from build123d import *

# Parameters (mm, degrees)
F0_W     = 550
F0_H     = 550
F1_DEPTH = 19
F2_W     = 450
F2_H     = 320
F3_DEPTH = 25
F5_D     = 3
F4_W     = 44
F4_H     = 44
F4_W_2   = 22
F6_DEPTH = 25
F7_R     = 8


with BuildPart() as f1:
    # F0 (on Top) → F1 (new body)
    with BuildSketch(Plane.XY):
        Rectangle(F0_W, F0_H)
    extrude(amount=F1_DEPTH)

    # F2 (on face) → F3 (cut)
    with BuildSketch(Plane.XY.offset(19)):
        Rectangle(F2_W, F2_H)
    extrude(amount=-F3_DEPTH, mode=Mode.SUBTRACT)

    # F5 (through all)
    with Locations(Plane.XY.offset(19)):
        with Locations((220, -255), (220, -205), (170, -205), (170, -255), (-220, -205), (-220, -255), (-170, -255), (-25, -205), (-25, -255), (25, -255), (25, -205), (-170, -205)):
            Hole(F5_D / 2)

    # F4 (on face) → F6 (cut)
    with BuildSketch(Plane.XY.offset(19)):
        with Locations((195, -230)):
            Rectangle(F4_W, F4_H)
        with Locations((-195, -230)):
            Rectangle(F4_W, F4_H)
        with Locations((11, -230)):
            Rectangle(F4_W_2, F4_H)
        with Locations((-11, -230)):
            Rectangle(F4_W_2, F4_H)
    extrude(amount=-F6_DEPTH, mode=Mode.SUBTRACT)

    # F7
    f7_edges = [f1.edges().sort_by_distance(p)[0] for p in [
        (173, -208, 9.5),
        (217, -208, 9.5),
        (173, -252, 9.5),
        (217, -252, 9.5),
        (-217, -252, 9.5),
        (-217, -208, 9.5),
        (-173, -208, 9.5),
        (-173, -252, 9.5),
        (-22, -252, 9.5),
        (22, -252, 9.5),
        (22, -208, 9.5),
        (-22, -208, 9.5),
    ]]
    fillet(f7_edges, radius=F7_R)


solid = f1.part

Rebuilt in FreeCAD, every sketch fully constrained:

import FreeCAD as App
import Part
import Sketcher

V = App.Vector
Q = App.Units.Quantity


def edges_at(feature, points):
    """Names of the edges that pass closest to the given points."""
    edges = feature.Shape.Edges
    near = lambda p: min(range(len(edges)), key=lambda i: edges[i].distToShape(Part.Vertex(*p))[0])
    return sorted({f"Edge{near(p) + 1}" for p in points})


def add_polygon(sketch, points):
    """Adds a closed chain of lines whose ends are joined by coincident constraints."""
    first, n = sketch.GeometryCount, len(points)
    for a, b in zip(points, points[1:] + points[:1]):
        sketch.addGeometry(Part.LineSegment(App.Vector(*a, 0), App.Vector(*b, 0)), False)
    for i in range(n):
        sketch.addConstraint(Sketcher.Constraint("Coincident", first + i, 2, first + (i + 1) % n, 1))

doc = App.newDocument("Part")
body = doc.addObject("PartDesign::Body", "Body")

# Sketch on XY plane
sketch1 = body.newObject("Sketcher::SketchObject", "Sketch")
sketch1.AttachmentSupport = (doc.getObject("XY_Plane"), [""])
sketch1.MapMode = "FlatFace"
add_polygon(sketch1, [(-275, 275), (-275, -275), (275, -275), (275, 275)])  # lines 0-3
sketch1.addConstraint([
    Sketcher.Constraint("Vertical", 0),
    Sketcher.Constraint("Horizontal", 1),
    Sketcher.Constraint("Vertical", 2),
    Sketcher.Constraint("Horizontal", 3),
    Sketcher.Constraint("Symmetric", 0, 2, 2, 2, -1, 1),
    Sketcher.Constraint("Equal", 3, 0),
    Sketcher.Constraint("DistanceX", 1, 1, 1, 2, Q("550 mm")),
])
pad1 = body.newObject("PartDesign::Pad", "Pad")
pad1.Profile = sketch1
pad1.Length = 19

# Sketch on XY plane
sketch2 = body.newObject("Sketcher::SketchObject", "Sketch001")
sketch2.AttachmentSupport = (doc.getObject("XY_Plane"), [""])
sketch2.MapMode = "FlatFace"
sketch2.AttachmentOffset = App.Placement(V(0, 0, 19), App.Rotation())
add_polygon(sketch2, [(-225, 160), (-225, -160), (225, -160), (225, 160)])  # lines 0-3
sketch2.addConstraint([
    Sketcher.Constraint("Vertical", 0),
    Sketcher.Constraint("Horizontal", 1),
    Sketcher.Constraint("Vertical", 2),
    Sketcher.Constraint("Horizontal", 3),
    Sketcher.Constraint("Symmetric", 0, 2, 2, 2, -1, 1),
    Sketcher.Constraint("DistanceX", 1, 1, 1, 2, Q("450 mm")),
    Sketcher.Constraint("DistanceY", 0, 2, 0, 1, Q("320 mm")),
])
pocket1 = body.newObject("PartDesign::Pocket", "Pocket")
pocket1.Profile = sketch2
pocket1.Length = 25

# Sketch on XY plane
sketch3 = body.newObject("Sketcher::SketchObject", "Sketch002")
sketch3.AttachmentSupport = (doc.getObject("XY_Plane"), [""])
sketch3.MapMode = "FlatFace"
sketch3.AttachmentOffset = App.Placement(V(0, 0, 19), App.Rotation())
sketch3.addGeometry([
    Part.Circle(V(220, -255, 0), V(0, 0, 1), 1.5),  # 0
    Part.Circle(V(220, -205, 0), V(0, 0, 1), 1.5),  # 1
    Part.Circle(V(170, -205, 0), V(0, 0, 1), 1.5),  # 2
    Part.Circle(V(170, -255, 0), V(0, 0, 1), 1.5),  # 3
    Part.Circle(V(-220, -205, 0), V(0, 0, 1), 1.5),  # 4
    Part.Circle(V(-220, -255, 0), V(0, 0, 1), 1.5),  # 5
    Part.Circle(V(-170, -255, 0), V(0, 0, 1), 1.5),  # 6
    Part.Circle(V(-25, -205, 0), V(0, 0, 1), 1.5),  # 7
    Part.Circle(V(-25, -255, 0), V(0, 0, 1), 1.5),  # 8
    Part.Circle(V(25, -255, 0), V(0, 0, 1), 1.5),  # 9
    Part.Circle(V(25, -205, 0), V(0, 0, 1), 1.5),  # 10
    Part.Circle(V(-170, -205, 0), V(0, 0, 1), 1.5),  # 11
], False)
sketch3.addConstraint([
    Sketcher.Constraint("Equal", 0, 1),
    Sketcher.Constraint("Equal", 1, 2),
    Sketcher.Constraint("Equal", 2, 3),
    Sketcher.Constraint("Equal", 3, 4),
    Sketcher.Constraint("Equal", 4, 5),
    Sketcher.Constraint("Equal", 5, 6),
    Sketcher.Constraint("Equal", 6, 7),
    Sketcher.Constraint("Equal", 7, 8),
    Sketcher.Constraint("Equal", 8, 9),
    Sketcher.Constraint("Equal", 9, 10),
    Sketcher.Constraint("Equal", 10, 11),
    Sketcher.Constraint("Symmetric", 1, 3, 4, 3, -2),
    Sketcher.Constraint("Symmetric", 0, 3, 5, 3, -2),
    Sketcher.Constraint("Symmetric", 3, 3, 6, 3, -2),
    Sketcher.Constraint("Symmetric", 8, 3, 9, 3, -2),
    Sketcher.Constraint("Symmetric", 7, 3, 10, 3, -2),
    Sketcher.Constraint("Symmetric", 2, 3, 11, 3, -2),
    Sketcher.Constraint("Horizontal", 1, 3, 2, 3),
    Sketcher.Constraint("Horizontal", 0, 3, 3, 3),
    Sketcher.Constraint("Horizontal", 4, 3, 7, 3),
    Sketcher.Constraint("Horizontal", 6, 3, 8, 3),
    Sketcher.Constraint("Vertical", 0, 3, 1, 3),
    Sketcher.Constraint("Vertical", 2, 3, 3, 3),
    Sketcher.Constraint("Vertical", 7, 3, 8, 3),
    Sketcher.Constraint("Diameter", 0, Q("3 mm")),
    Sketcher.Constraint("DistanceX", -1, 1, 0, 3, Q("220 mm")),
    Sketcher.Constraint("DistanceY", 0, 3, -1, 1, Q("255 mm")),
    Sketcher.Constraint("DistanceY", 1, 3, -1, 1, Q("205 mm")),
    Sketcher.Constraint("DistanceX", -1, 1, 2, 3, Q("170 mm")),
    Sketcher.Constraint("DistanceX", 7, 3, -1, 1, Q("25 mm")),
])
doc.recompute()
hole = body.newObject("PartDesign::Hole", "Hole")
hole.Profile = sketch3
hole.ThreadType = "None"
hole.Diameter = 3
hole.DepthType = "ThroughAll"

# Sketch on XY plane
sketch4 = body.newObject("Sketcher::SketchObject", "Sketch003")
sketch4.AttachmentSupport = (doc.getObject("XY_Plane"), [""])
sketch4.MapMode = "FlatFace"
sketch4.AttachmentOffset = App.Placement(V(0, 0, 19), App.Rotation())
add_polygon(sketch4, [(173, -208), (173, -252), (217, -252), (217, -208)])  # lines 0-3
add_polygon(sketch4, [(-217, -208), (-217, -252), (-173, -252), (-173, -208)])  # lines 4-7
add_polygon(sketch4, [(22, -252), (22, -208), (-22, -208), (-22, -252)])  # lines 8-11
sketch4.addConstraint([
    Sketcher.Constraint("Vertical", 0),
    Sketcher.Constraint("Horizontal", 1),
    Sketcher.Constraint("Vertical", 2),
    Sketcher.Constraint("Horizontal", 3),
    Sketcher.Constraint("Vertical", 4),
    Sketcher.Constraint("Horizontal", 5),
    Sketcher.Constraint("Vertical", 6),
    Sketcher.Constraint("Horizontal", 7),
    Sketcher.Constraint("Vertical", 8),
    Sketcher.Constraint("Horizontal", 9),
    Sketcher.Constraint("Vertical", 10),
    Sketcher.Constraint("Horizontal", 11),
    Sketcher.Constraint("Symmetric", 1, 2, 4, 2, -2),
    Sketcher.Constraint("Symmetric", 3, 2, 6, 2, -2),
    Sketcher.Constraint("Horizontal", 7, 2, 8, 2),
    Sketcher.Constraint("Horizontal", 5, 2, 10, 2),
    Sketcher.Constraint("Equal", 7, 9),
    Sketcher.Constraint("Equal", 11, 0),
    Sketcher.Constraint("DistanceX", 1, 1, 1, 2, Q("44 mm")),
    Sketcher.Constraint("DistanceX", -1, 1, 0, 2, Q("173 mm")),
    Sketcher.Constraint("DistanceY", 0, 2, -1, 1, Q("252 mm")),
    Sketcher.Constraint("DistanceX", -1, 1, 8, 2, Q("22 mm")),
])
pocket2 = body.newObject("PartDesign::Pocket", "Pocket001")
pocket2.Profile = sketch4
pocket2.Length = 25
doc.recompute()

fillet = body.newObject("PartDesign::Fillet", "Fillet")
fillet.Base = (pocket2, edges_at(pocket2, [
    (173, -208, 9.5),
    (217, -208, 9.5),
    (173, -252, 9.5),
    (217, -252, 9.5),
    (-217, -252, 9.5),
    (-217, -208, 9.5),
    (-173, -208, 9.5),
    (-173, -252, 9.5),
    (-22, -252, 9.5),
    (22, -252, 9.5),
    (22, -208, 9.5),
    (-22, -208, 9.5),
]))
fillet.Radius = 8

doc.recompute()
